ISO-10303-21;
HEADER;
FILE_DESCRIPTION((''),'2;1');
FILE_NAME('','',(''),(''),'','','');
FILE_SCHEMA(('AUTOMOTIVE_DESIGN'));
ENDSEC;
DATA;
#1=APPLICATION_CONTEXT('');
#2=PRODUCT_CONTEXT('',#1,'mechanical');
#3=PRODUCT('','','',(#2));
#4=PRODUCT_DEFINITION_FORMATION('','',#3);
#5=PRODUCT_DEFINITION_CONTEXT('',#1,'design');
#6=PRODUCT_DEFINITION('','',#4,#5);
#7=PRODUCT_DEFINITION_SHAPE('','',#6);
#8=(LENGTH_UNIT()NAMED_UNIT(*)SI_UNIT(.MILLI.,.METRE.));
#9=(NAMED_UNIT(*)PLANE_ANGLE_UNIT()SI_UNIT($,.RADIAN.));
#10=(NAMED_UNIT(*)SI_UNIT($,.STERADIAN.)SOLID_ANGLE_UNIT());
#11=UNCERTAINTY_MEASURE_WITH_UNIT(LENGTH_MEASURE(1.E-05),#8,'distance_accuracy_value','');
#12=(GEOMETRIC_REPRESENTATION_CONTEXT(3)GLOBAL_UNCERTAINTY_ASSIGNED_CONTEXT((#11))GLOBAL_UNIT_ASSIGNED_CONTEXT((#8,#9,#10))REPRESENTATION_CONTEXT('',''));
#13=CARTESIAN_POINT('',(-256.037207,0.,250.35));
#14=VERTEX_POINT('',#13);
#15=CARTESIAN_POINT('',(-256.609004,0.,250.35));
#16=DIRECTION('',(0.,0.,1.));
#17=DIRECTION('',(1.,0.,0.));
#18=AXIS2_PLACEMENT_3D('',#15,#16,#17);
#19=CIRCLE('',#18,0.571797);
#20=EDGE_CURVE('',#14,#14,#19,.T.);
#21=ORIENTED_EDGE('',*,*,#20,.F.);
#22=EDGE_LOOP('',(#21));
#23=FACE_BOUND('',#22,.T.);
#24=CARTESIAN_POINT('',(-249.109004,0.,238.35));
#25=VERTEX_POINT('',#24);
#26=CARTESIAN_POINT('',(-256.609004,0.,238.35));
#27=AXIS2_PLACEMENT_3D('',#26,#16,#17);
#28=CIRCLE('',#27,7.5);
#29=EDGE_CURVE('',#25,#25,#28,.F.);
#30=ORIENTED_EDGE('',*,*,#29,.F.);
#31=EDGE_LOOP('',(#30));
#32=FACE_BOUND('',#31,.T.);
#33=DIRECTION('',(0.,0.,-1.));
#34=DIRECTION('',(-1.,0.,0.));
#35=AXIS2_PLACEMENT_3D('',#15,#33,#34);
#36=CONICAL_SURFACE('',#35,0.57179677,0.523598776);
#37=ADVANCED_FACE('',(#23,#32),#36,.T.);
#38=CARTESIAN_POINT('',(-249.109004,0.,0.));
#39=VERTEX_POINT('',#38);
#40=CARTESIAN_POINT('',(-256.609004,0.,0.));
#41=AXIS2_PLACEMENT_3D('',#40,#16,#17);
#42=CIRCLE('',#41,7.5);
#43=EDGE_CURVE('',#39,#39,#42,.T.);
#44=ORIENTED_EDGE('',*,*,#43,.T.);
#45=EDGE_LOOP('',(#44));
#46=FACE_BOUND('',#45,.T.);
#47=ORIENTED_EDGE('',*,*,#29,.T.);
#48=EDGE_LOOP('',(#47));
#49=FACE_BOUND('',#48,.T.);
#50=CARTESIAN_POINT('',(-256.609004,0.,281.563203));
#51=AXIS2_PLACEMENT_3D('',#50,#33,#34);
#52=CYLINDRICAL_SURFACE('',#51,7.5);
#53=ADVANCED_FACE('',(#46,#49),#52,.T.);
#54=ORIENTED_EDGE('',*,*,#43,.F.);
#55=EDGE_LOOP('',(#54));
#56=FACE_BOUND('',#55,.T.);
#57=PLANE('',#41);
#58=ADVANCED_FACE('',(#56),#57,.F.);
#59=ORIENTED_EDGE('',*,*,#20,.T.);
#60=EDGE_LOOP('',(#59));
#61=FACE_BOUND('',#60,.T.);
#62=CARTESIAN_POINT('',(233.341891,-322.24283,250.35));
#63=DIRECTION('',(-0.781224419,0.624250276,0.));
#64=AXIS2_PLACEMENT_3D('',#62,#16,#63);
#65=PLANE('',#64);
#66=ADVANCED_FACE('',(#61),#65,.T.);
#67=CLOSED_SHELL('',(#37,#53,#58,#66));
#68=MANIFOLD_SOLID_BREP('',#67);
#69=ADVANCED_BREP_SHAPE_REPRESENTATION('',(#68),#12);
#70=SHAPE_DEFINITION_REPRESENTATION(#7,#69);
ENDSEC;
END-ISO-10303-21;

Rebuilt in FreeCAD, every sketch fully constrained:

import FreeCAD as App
import Part
import Sketcher
from FreeCAD import Vector


def edges_at(feature, points):
    """Names of the edges that pass closest to the given points."""
    edges = feature.Shape.Edges
    near = lambda p: min(range(len(edges)), key=lambda i: edges[i].distToShape(Part.Vertex(*p))[0])
    return sorted({f"Edge{near(p) + 1}" for p in points})

doc = App.newDocument("Part")
params = doc.addObject("Spreadsheet::Sheet", "Params")
for row, (alias, value) in enumerate([
    ("sketch1_diameter", "15 mm"),
    ("pad1_length", "250.35 mm"),
    ("chamfer_size", "12 mm"),
    ("chamfer_size2", "6.928203 mm"),
], start=1):
    params.set(f"A{row}", alias)
    params.set(f"B{row}", "=" + value)
    params.setAlias(f"B{row}", alias)

body = doc.addObject("PartDesign::Body", "Body")

sketch1 = body.newObject("Sketcher::SketchObject", "Sketch")
sketch1.AttachmentSupport = (doc.getObject("XY_Plane"), [""])
sketch1.MapMode = "FlatFace"
sketch1.addGeometry(Part.Circle(Vector(-256.609004, 0, 0), Vector(0, 0, 1), 7.5), False)
sketch1.addConstraint([
    Sketcher.Constraint("PointOnObject", 0, 3, -1),
    Sketcher.Constraint("Diameter", 0, 15.0),
    Sketcher.Constraint("DistanceX", 0, 3, -1, 1, 256.609004),
])
sketch1.setExpression("Constraints[1]", "Params.sketch1_diameter")
pad1 = body.newObject("PartDesign::Pad", "Pad")
pad1.Profile = sketch1
pad1.setExpression("Length", "Params.pad1_length")
doc.recompute()

chamfer = body.newObject("PartDesign::Chamfer", "Chamfer")
chamfer.Base = (pad1, edges_at(pad1, [(-264.109, 0, 250.35)]))
chamfer.ChamferType = "Two distances"
chamfer.setExpression("Size", "Params.chamfer_size")
chamfer.setExpression("Size2", "Params.chamfer_size2")

doc.recompute()
